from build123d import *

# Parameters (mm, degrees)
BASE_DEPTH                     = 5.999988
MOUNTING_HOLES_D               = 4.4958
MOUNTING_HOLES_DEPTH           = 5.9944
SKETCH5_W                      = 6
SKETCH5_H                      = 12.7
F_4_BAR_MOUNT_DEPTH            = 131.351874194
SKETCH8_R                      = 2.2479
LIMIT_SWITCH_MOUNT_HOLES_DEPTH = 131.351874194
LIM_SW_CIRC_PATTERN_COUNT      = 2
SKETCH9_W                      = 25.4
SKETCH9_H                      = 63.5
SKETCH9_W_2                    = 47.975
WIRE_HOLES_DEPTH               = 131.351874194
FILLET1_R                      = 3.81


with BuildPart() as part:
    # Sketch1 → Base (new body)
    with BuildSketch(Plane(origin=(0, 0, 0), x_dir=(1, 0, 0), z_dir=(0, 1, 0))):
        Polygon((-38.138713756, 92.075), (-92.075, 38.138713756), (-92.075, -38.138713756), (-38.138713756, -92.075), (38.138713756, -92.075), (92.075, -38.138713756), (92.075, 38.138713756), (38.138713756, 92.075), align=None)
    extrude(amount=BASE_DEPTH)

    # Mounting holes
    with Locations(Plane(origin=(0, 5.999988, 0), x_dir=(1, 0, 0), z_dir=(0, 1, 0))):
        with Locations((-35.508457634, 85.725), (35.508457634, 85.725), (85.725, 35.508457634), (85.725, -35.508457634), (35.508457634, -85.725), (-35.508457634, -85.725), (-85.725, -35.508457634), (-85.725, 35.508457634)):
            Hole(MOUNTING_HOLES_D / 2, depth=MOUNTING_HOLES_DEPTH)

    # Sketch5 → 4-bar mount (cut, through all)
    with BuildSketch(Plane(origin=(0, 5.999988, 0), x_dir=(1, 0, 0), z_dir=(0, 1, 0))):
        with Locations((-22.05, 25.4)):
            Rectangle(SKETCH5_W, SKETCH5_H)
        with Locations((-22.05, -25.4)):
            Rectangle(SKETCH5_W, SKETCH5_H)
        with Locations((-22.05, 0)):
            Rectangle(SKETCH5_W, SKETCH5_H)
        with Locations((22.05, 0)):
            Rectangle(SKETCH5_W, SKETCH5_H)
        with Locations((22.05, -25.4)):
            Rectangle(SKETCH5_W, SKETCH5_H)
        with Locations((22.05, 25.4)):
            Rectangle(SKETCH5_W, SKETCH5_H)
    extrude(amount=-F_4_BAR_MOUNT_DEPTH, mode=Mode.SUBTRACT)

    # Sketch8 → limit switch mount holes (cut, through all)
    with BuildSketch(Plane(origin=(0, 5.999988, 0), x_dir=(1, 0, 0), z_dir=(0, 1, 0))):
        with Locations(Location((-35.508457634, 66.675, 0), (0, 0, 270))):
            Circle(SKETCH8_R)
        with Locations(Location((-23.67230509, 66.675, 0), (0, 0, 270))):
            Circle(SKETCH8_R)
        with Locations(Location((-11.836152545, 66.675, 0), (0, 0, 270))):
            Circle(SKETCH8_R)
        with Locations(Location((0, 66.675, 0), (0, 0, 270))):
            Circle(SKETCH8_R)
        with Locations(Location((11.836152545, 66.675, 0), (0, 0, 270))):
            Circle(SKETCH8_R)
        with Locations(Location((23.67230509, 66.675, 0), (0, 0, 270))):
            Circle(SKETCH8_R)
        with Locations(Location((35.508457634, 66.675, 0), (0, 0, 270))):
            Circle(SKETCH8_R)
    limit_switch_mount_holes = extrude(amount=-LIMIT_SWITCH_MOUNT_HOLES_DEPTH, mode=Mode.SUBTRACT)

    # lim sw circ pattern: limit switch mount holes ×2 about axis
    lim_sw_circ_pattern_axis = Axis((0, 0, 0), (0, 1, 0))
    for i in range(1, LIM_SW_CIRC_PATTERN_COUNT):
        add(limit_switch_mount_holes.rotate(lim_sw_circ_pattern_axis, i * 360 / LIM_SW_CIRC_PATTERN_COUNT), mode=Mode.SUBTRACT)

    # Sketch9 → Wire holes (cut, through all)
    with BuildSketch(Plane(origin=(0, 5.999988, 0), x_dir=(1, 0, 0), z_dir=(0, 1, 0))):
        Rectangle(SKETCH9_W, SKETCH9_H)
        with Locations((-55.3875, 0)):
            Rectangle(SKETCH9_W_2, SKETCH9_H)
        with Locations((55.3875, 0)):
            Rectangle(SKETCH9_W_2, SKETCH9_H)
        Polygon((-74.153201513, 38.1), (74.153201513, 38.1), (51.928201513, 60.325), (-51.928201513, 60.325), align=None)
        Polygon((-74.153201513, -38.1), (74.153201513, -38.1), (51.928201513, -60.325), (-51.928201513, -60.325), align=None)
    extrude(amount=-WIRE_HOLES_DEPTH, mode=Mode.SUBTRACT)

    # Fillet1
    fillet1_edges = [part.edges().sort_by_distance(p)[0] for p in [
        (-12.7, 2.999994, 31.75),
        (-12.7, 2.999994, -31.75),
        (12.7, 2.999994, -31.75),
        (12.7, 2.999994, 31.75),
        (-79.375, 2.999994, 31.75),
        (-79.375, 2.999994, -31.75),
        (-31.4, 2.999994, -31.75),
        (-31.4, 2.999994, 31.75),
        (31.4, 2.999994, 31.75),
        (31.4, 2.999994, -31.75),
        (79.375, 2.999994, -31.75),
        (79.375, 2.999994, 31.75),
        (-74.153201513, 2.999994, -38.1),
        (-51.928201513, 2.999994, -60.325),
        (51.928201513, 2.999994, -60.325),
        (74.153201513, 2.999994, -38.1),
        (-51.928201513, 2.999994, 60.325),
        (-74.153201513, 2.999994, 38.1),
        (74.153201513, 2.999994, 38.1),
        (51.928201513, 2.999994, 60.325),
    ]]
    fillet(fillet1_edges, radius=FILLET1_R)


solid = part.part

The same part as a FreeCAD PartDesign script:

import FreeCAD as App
import Part
import Sketcher

V = App.Vector
Q = App.Units.Quantity


def edges_at(feature, points):
    """Names of the edges that pass closest to the given points."""
    edges = feature.Shape.Edges
    near = lambda p: min(range(len(edges)), key=lambda i: edges[i].distToShape(Part.Vertex(*p))[0])
    return sorted({f"Edge{near(p) + 1}" for p in points})

doc = App.newDocument("Part")
body = doc.addObject("PartDesign::Body", "Body")

# Sketch on XZ plane
sketch1 = doc.addObject("Sketcher::SketchObject", "Sketch")
body.addObject(sketch1)
sketch1.AttachmentSupport = (doc.XZ_Plane, [""])
sketch1.MapMode = "FlatFace"
sketch1.addGeometry(Part.LineSegment(V(-38.138714, -92.075, 0), V(-92.075, -38.138714, 0)), False)
sketch1.addGeometry(Part.LineSegment(V(-92.075, -38.138714, 0), V(-92.075, 38.138714, 0)), False)
sketch1.addGeometry(Part.LineSegment(V(-92.075, 38.138714, 0), V(-38.138714, 92.075, 0)), False)
sketch1.addGeometry(Part.LineSegment(V(-38.138714, 92.075, 0), V(38.138714, 92.075, 0)), False)
sketch1.addGeometry(Part.LineSegment(V(38.138714, 92.075, 0), V(92.075, 38.138714, 0)), False)
sketch1.addGeometry(Part.LineSegment(V(92.075, 38.138714, 0), V(92.075, -38.138714, 0)), False)
sketch1.addGeometry(Part.LineSegment(V(92.075, -38.138714, 0), V(38.138714, -92.075, 0)), False)
sketch1.addGeometry(Part.LineSegment(V(38.138714, -92.075, 0), V(-38.138714, -92.075, 0)), False)
sketch1.addConstraint(Sketcher.Constraint("Coincident", 0, 2, 1, 1))
sketch1.addConstraint(Sketcher.Constraint("Coincident", 1, 2, 2, 1))
sketch1.addConstraint(Sketcher.Constraint("Coincident", 2, 2, 3, 1))
sketch1.addConstraint(Sketcher.Constraint("Coincident", 3, 2, 4, 1))
sketch1.addConstraint(Sketcher.Constraint("Coincident", 4, 2, 5, 1))
sketch1.addConstraint(Sketcher.Constraint("Coincident", 5, 2, 6, 1))
sketch1.addConstraint(Sketcher.Constraint("Coincident", 6, 2, 7, 1))
sketch1.addConstraint(Sketcher.Constraint("Coincident", 7, 2, 0, 1))
sketch1.addConstraint(Sketcher.Constraint("Vertical", 1))
sketch1.addConstraint(Sketcher.Constraint("Horizontal", 3))
sketch1.addConstraint(Sketcher.Constraint("Vertical", 5))
sketch1.addConstraint(Sketcher.Constraint("Horizontal", 7))
sketch1.addConstraint(Sketcher.Constraint("Symmetric", 0, 2, 4, 2, -1, 1))
sketch1.addConstraint(Sketcher.Constraint("Symmetric", 2, 2, 6, 2, -1, 1))
sketch1.addConstraint(Sketcher.Constraint("Perpendicular", 0, 2))
sketch1.addConstraint(Sketcher.Constraint("Perpendicular", 2, 4))
sketch1.addConstraint(Sketcher.Constraint("Perpendicular", 4, 6))
sketch1.addConstraint(Sketcher.Constraint("Horizontal", 1, 2, 4, 2))
sketch1.addConstraint(Sketcher.Constraint("Vertical", 3, 2, 6, 2))
sketch1.addConstraint(Sketcher.Constraint("Equal", 7, 1))
sketch1.addConstraint(Sketcher.Constraint("DistanceX", 1, 2, 4, 2, Q("7.25 in")))
sketch1.addConstraint(Sketcher.Constraint("DistanceX", 3, 1, 3, 2, Q("76.277428 mm")))
pad1 = doc.addObject("PartDesign::Pad", "Pad")
body.addObject(pad1)
pad1.Profile = sketch1
pad1.Length = 5.999988
pad1.Reversed = True

# Sketch on XZ plane
sketch2 = doc.addObject("Sketcher::SketchObject", "Sketch001")
body.addObject(sketch2)
sketch2.AttachmentSupport = (doc.XZ_Plane, [""])
sketch2.MapMode = "FlatFace"
sketch2.AttachmentOffset = App.Placement(V(0, 0, -5.999988), App.Rotation())
sketch2.addGeometry(Part.Circle(V(-35.508458, -85.725, 0), V(0, 0, 1), 2.2479), False)
sketch2.addGeometry(Part.Circle(V(35.508458, -85.725, 0), V(0, 0, 1), 2.2479), False)
sketch2.addGeometry(Part.Circle(V(85.725, -35.508458, 0), V(0, 0, 1), 2.2479), False)
sketch2.addGeometry(Part.Circle(V(85.725, 35.508458, 0), V(0, 0, 1), 2.2479), False)
sketch2.addGeometry(Part.Circle(V(35.508458, 85.725, 0), V(0, 0, 1), 2.2479), False)
sketch2.addGeometry(Part.Circle(V(-35.508458, 85.725, 0), V(0, 0, 1), 2.2479), False)
sketch2.addGeometry(Part.Circle(V(-85.725, 35.508458, 0), V(0, 0, 1), 2.2479), False)
sketch2.addGeometry(Part.Circle(V(-85.725, -35.508458, 0), V(0, 0, 1), 2.2479), False)
sketch2.addConstraint(Sketcher.Constraint("Equal", 0, 1))
sketch2.addConstraint(Sketcher.Constraint("Equal", 1, 2))
sketch2.addConstraint(Sketcher.Constraint("Equal", 2, 3))
sketch2.addConstraint(Sketcher.Constraint("Equal", 3, 4))
sketch2.addConstraint(Sketcher.Constraint("Equal", 4, 5))
sketch2.addConstraint(Sketcher.Constraint("Equal", 5, 6))
sketch2.addConstraint(Sketcher.Constraint("Equal", 6, 7))
sketch2.addConstraint(Sketcher.Constraint("Symmetric", 0, 3, 4, 3, -1, 1))
sketch2.addConstraint(Sketcher.Constraint("Symmetric", 1, 3, 5, 3, -1, 1))
sketch2.addConstraint(Sketcher.Constraint("Symmetric", 2, 3, 6, 3, -1, 1))
sketch2.addConstraint(Sketcher.Constraint("Symmetric", 3, 3, 7, 3, -1, 1))
sketch2.addConstraint(Sketcher.Constraint("Symmetric", 0, 3, 1, 3, -2))
sketch2.addConstraint(Sketcher.Constraint("Symmetric", 3, 3, 6, 3, -2))
sketch2.addConstraint(Sketcher.Constraint("Diameter", 0, Q("0.177 in")))
sketch2.addConstraint(Sketcher.Constraint("DistanceY", 1, 3, 4, 3, Q("6.75 in")))
sketch2.addConstraint(Sketcher.Constraint("DistanceX", 6, 3, 3, 3, Q("6.75 in")))
sketch2.addConstraint(Sketcher.Constraint("DistanceX", 0, 3, -1, 1, Q("35.508458 mm")))
sketch2.addConstraint(Sketcher.Constraint("DistanceY", 2, 3, -1, 1, Q("35.508458 mm")))
doc.recompute()
hole = doc.addObject("PartDesign::Hole", "Hole")
body.addObject(hole)
hole.Profile = sketch2
hole.ThreadType = "None"
hole.Diameter = Q("0.177 in")
hole.DepthType = "Dimension"
hole.Depth = Q("0.236 in")
hole.DrillPoint = "Flat"
hole.Reversed = True

# Sketch on XZ plane
sketch3 = doc.addObject("Sketcher::SketchObject", "Sketch002")
body.addObject(sketch3)
sketch3.AttachmentSupport = (doc.XZ_Plane, [""])
sketch3.MapMode = "FlatFace"
sketch3.AttachmentOffset = App.Placement(V(0, 0, -5.999988), App.Rotation())
sketch3.addGeometry(Part.LineSegment(V(-25.05, -31.75, 0), V(-25.05, -19.05, 0)), False)
sketch3.addGeometry(Part.LineSegment(V(-25.05, -19.05, 0), V(-19.05, -19.05, 0)), False)
sketch3.addGeometry(Part.LineSegment(V(-19.05, -19.05, 0), V(-19.05, -31.75, 0)), False)
sketch3.addGeometry(Part.LineSegment(V(-19.05, -31.75, 0), V(-25.05, -31.75, 0)), False)
sketch3.addGeometry(Part.LineSegment(V(-25.05, 19.05, 0), V(-25.05, 31.75, 0)), False)
sketch3.addGeometry(Part.LineSegment(V(-25.05, 31.75, 0), V(-19.05, 31.75, 0)), False)
sketch3.addGeometry(Part.LineSegment(V(-19.05, 31.75, 0), V(-19.05, 19.05, 0)), False)
sketch3.addGeometry(Part.LineSegment(V(-19.05, 19.05, 0), V(-25.05, 19.05, 0)), False)
sketch3.addGeometry(Part.LineSegment(V(-25.05, -6.35, 0), V(-25.05, 6.35, 0)), False)
sketch3.addGeometry(Part.LineSegment(V(-25.05, 6.35, 0), V(-19.05, 6.35, 0)), False)
sketch3.addGeometry(Part.LineSegment(V(-19.05, 6.35, 0), V(-19.05, -6.35, 0)), False)
sketch3.addGeometry(Part.LineSegment(V(-19.05, -6.35, 0), V(-25.05, -6.35, 0)), False)
sketch3.addGeometry(Part.LineSegment(V(19.05, -6.35, 0), V(19.05, 6.35, 0)), False)
sketch3.addGeometry(Part.LineSegment(V(19.05, 6.35, 0), V(25.05, 6.35, 0)), False)
sketch3.addGeometry(Part.LineSegment(V(25.05, 6.35, 0), V(25.05, -6.35, 0)), False)
sketch3.addGeometry(Part.LineSegment(V(25.05, -6.35, 0), V(19.05, -6.35, 0)), False)
sketch3.addGeometry(Part.LineSegment(V(19.05, 19.05, 0), V(19.05, 31.75, 0)), False)
sketch3.addGeometry(Part.LineSegment(V(19.05, 31.75, 0), V(25.05, 31.75, 0)), False)
sketch3.addGeometry(Part.LineSegment(V(25.05, 31.75, 0), V(25.05, 19.05, 0)), False)
sketch3.addGeometry(Part.LineSegment(V(25.05, 19.05, 0), V(19.05, 19.05, 0)), False)
sketch3.addGeometry(Part.LineSegment(V(19.05, -31.75, 0), V(19.05, -19.05, 0)), False)
sketch3.addGeometry(Part.LineSegment(V(19.05, -19.05, 0), V(25.05, -19.05, 0)), False)
sketch3.addGeometry(Part.LineSegment(V(25.05, -19.05, 0), V(25.05, -31.75, 0)), False)
sketch3.addGeometry(Part.LineSegment(V(25.05, -31.75, 0), V(19.05, -31.75, 0)), False)
sketch3.addConstraint(Sketcher.Constraint("Coincident", 0, 2, 1, 1))
sketch3.addConstraint(Sketcher.Constraint("Coincident", 1, 2, 2, 1))
sketch3.addConstraint(Sketcher.Constraint("Coincident", 2, 2, 3, 1))
sketch3.addConstraint(Sketcher.Constraint("Coincident", 3, 2, 0, 1))
sketch3.addConstraint(Sketcher.Constraint("Coincident", 4, 2, 5, 1))
sketch3.addConstraint(Sketcher.Constraint("Coincident", 5, 2, 6, 1))
sketch3.addConstraint(Sketcher.Constraint("Coincident", 6, 2, 7, 1))
sketch3.addConstraint(Sketcher.Constraint("Coincident", 7, 2, 4, 1))
sketch3.addConstraint(Sketcher.Constraint("Coincident", 8, 2, 9, 1))
sketch3.addConstraint(Sketcher.Constraint("Coincident", 9, 2, 10, 1))
sketch3.addConstraint(Sketcher.Constraint("Coincident", 10, 2, 11, 1))
sketch3.addConstraint(Sketcher.Constraint("Coincident", 11, 2, 8, 1))
sketch3.addConstraint(Sketcher.Constraint("Coincident", 12, 2, 13, 1))
sketch3.addConstraint(Sketcher.Constraint("Coincident", 13, 2, 14, 1))
sketch3.addConstraint(Sketcher.Constraint("Coincident", 14, 2, 15, 1))
sketch3.addConstraint(Sketcher.Constraint("Coincident", 15, 2, 12, 1))
sketch3.addConstraint(Sketcher.Constraint("Coincident", 16, 2, 17, 1))
sketch3.addConstraint(Sketcher.Constraint("Coincident", 17, 2, 18, 1))
sketch3.addConstraint(Sketcher.Constraint("Coincident", 18, 2, 19, 1))
sketch3.addConstraint(Sketcher.Constraint("Coincident", 19, 2, 16, 1))
sketch3.addConstraint(Sketcher.Constraint("Coincident", 20, 2, 21, 1))
sketch3.addConstraint(Sketcher.Constraint("Coincident", 21, 2, 22, 1))
sketch3.addConstraint(Sketcher.Constraint("Coincident", 22, 2, 23, 1))
sketch3.addConstraint(Sketcher.Constraint("Coincident", 23, 2, 20, 1))
sketch3.addConstraint(Sketcher.Constraint("Vertical", 0))
sketch3.addConstraint(Sketcher.Constraint("Horizontal", 1))
sketch3.addConstraint(Sketcher.Constraint("Vertical", 2))
sketch3.addConstraint(Sketcher.Constraint("Horizontal", 3))
sketch3.addConstraint(Sketcher.Constraint("Vertical", 4))
sketch3.addConstraint(Sketcher.Constraint("Horizontal", 5))
sketch3.addConstraint(Sketcher.Constraint("Vertical", 6))
sketch3.addConstraint(Sketcher.Constraint("Horizontal", 7))
sketch3.addConstraint(Sketcher.Constraint("Vertical", 8))
sketch3.addConstraint(Sketcher.Constraint("Horizontal", 9))
sketch3.addConstraint(Sketcher.Constraint("Vertical", 10))
sketch3.addConstraint(Sketcher.Constraint("Horizontal", 11))
sketch3.addConstraint(Sketcher.Constraint("Vertical", 12))
sketch3.addConstraint(Sketcher.Constraint("Horizontal", 13))
sketch3.addConstraint(Sketcher.Constraint("Vertical", 14))
sketch3.addConstraint(Sketcher.Constraint("Horizontal", 15))
sketch3.addConstraint(Sketcher.Constraint("Vertical", 16))
sketch3.addConstraint(Sketcher.Constraint("Horizontal", 17))
sketch3.addConstraint(Sketcher.Constraint("Vertical", 18))
sketch3.addConstraint(Sketcher.Constraint("Horizontal", 19))
sketch3.addConstraint(Sketcher.Constraint("Vertical", 20))
sketch3.addConstraint(Sketcher.Constraint("Horizontal", 21))
sketch3.addConstraint(Sketcher.Constraint("Vertical", 22))
sketch3.addConstraint(Sketcher.Constraint("Horizontal", 23))
sketch3.addConstraint(Sketcher.Constraint("Symmetric", 10, 2, 12, 2, -1, 1))
sketch3.addConstraint(Sketcher.Constraint("Symmetric", 8, 2, 14, 2, -1, 1))
sketch3.addConstraint(Sketcher.Constraint("Symmetric", 2, 2, 16, 2, -1, 1))
sketch3.addConstraint(Sketcher.Constraint("Symmetric", 0, 2, 18, 2, -1, 1))
sketch3.addConstraint(Sketcher.Constraint("Symmetric", 6, 2, 20, 2, -1, 1))
sketch3.addConstraint(Sketcher.Constraint("Symmetric", 4, 2, 22, 2, -1, 1))
sketch3.addConstraint(Sketcher.Constraint("Symmetric", 5, 2, 16, 2, -2))
sketch3.addConstraint(Sketcher.Constraint("Symmetric", 7, 2, 18, 2, -2))
sketch3.addConstraint(Sketcher.Constraint("Horizontal", 9, 2, 12, 2))
sketch3.addConstraint(Sketcher.Constraint("Vertical", 7, 2, 8, 2))
sketch3.addConstraint(Sketcher.Constraint("Vertical", 6, 2, 9, 2))
sketch3.addConstraint(Sketcher.Constraint("Equal", 6, 8))
sketch3.addConstraint(Sketcher.Constraint("DistanceY", 0, 1, 0, 2, Q("0.5 in")))
sketch3.addConstraint(Sketcher.Constraint("DistanceY", 0, 2, 4, 2, Q("2 in")))
sketch3.addConstraint(Sketcher.Constraint("DistanceX", 9, 2, 12, 2, Q("1.5 in")))
sketch3.addConstraint(Sketcher.Constraint("DistanceX", 1, 1, 1, 2, Q("6 mm")))
pocket1 = doc.addObject("PartDesign::Pocket", "Pocket")
body.addObject(pocket1)
pocket1.Profile = sketch3
pocket1.Type = "ThroughAll"
pocket1.Reversed = True

# Sketch on XZ plane
sketch4 = doc.addObject("Sketcher::SketchObject", "Sketch003")
body.addObject(sketch4)
sketch4.AttachmentSupport = (doc.XZ_Plane, [""])
sketch4.MapMode = "FlatFace"
sketch4.AttachmentOffset = App.Placement(V(0, 0, -5.999988), App.Rotation())
sketch4.addGeometry(Part.Circle(V(-35.508458, -66.675, 0), V(0, 0, 1), 2.2479), False)
sketch4.addGeometry(Part.Circle(V(-23.672305, -66.675, 0), V(0, 0, 1), 2.2479), False)
sketch4.addGeometry(Part.Circle(V(-11.836153, -66.675, 0), V(0, 0, 1), 2.2479), False)
sketch4.addGeometry(Part.Circle(V(0, -66.675, 0), V(0, 0, 1), 2.2479), False)
sketch4.addGeometry(Part.Circle(V(11.836153, -66.675, 0), V(0, 0, 1), 2.2479), False)
sketch4.addGeometry(Part.Circle(V(23.672305, -66.675, 0), V(0, 0, 1), 2.2479), False)
sketch4.addGeometry(Part.Circle(V(35.508458, -66.675, 0), V(0, 0, 1), 2.2479), False)
sketch4.addConstraint(Sketcher.Constraint("Equal", 0, 1))
sketch4.addConstraint(Sketcher.Constraint("Equal", 1, 2))
sketch4.addConstraint(Sketcher.Constraint("Equal", 2, 3))
sketch4.addConstraint(Sketcher.Constraint("Equal", 3, 4))
sketch4.addConstraint(Sketcher.Constraint("Equal", 4, 5))
sketch4.addConstraint(Sketcher.Constraint("Equal", 5, 6))
sketch4.addConstraint(Sketcher.Constraint("Symmetric", 2, 3, 4, 3, -2))
sketch4.addConstraint(Sketcher.Constraint("Symmetric", 1, 3, 5, 3, -2))
sketch4.addConstraint(Sketcher.Constraint("Symmetric", 0, 3, 6, 3, -2))
sketch4.addConstraint(Sketcher.Constraint("PointOnObject", 3, 3, -2))
sketch4.addConstraint(Sketcher.Constraint("Horizontal", 0, 3, 1, 3))
sketch4.addConstraint(Sketcher.Constraint("Horizontal", 1, 3, 2, 3))
sketch4.addConstraint(Sketcher.Constraint("Horizontal", 2, 3, 3, 3))
sketch4.addConstraint(Sketcher.Constraint("Diameter", 0, Q("0.177 in")))
sketch4.addConstraint(Sketcher.Constraint("DistanceY", 0, 3, -1, 1, Q("2.625 in")))
sketch4.addConstraint(Sketcher.Constraint("DistanceX", 0, 3, 4, 3, Q("47.34461 mm")))
sketch4.addConstraint(Sketcher.Constraint("DistanceX", 1, 3, 5, 3, Q("47.34461 mm")))
sketch4.addConstraint(Sketcher.Constraint("DistanceX", 0, 3, -1, 1, Q("35.508458 mm")))
pocket2 = doc.addObject("PartDesign::Pocket", "Pocket001")
body.addObject(pocket2)
pocket2.Profile = sketch4
pocket2.Type = "ThroughAll"
pocket2.Reversed = True
doc.recompute()

polarpattern = doc.addObject("PartDesign::PolarPattern", "PolarPattern")
body.addObject(polarpattern)
polarpattern.Originals = [pocket2]
polarpattern.Axis = (doc.Y_Axis, [""])
polarpattern.Angle = 360
polarpattern.Occurrences = 2
body.Tip = polarpattern

# Sketch on XZ plane
sketch5 = doc.addObject("Sketcher::SketchObject", "Sketch004")
body.addObject(sketch5)
sketch5.AttachmentSupport = (doc.XZ_Plane, [""])
sketch5.MapMode = "FlatFace"
sketch5.AttachmentOffset = App.Placement(V(0, 0, -5.999988), App.Rotation())
sketch5.addGeometry(Part.LineSegment(V(-12.7, -31.75, 0), V(-12.7, 31.75, 0)), False)
sketch5.addGeometry(Part.LineSegment(V(-12.7, 31.75, 0), V(12.7, 31.75, 0)), False)
sketch5.addGeometry(Part.LineSegment(V(12.7, 31.75, 0), V(12.7, -31.75, 0)), False)
sketch5.addGeometry(Part.LineSegment(V(12.7, -31.75, 0), V(-12.7, -31.75, 0)), False)
sketch5.addGeometry(Part.LineSegment(V(-79.375, -31.75, 0), V(-79.375, 31.75, 0)), False)
sketch5.addGeometry(Part.LineSegment(V(-79.375, 31.75, 0), V(-31.4, 31.75, 0)), False)
sketch5.addGeometry(Part.LineSegment(V(-31.4, 31.75, 0), V(-31.4, -31.75, 0)), False)
sketch5.addGeometry(Part.LineSegment(V(-31.4, -31.75, 0), V(-79.375, -31.75, 0)), False)
sketch5.addGeometry(Part.LineSegment(V(31.4, -31.75, 0), V(31.4, 31.75, 0)), False)
sketch5.addGeometry(Part.LineSegment(V(31.4, 31.75, 0), V(79.375, 31.75, 0)), False)
sketch5.addGeometry(Part.LineSegment(V(79.375, 31.75, 0), V(79.375, -31.75, 0)), False)
sketch5.addGeometry(Part.LineSegment(V(79.375, -31.75, 0), V(31.4, -31.75, 0)), False)
sketch5.addGeometry(Part.LineSegment(V(-74.153202, -38.1, 0), V(74.153202, -38.1, 0)), False)
sketch5.addGeometry(Part.LineSegment(V(74.153202, -38.1, 0), V(51.928202, -60.325, 0)), False)
sketch5.addGeometry(Part.LineSegment(V(51.928202, -60.325, 0), V(-51.928202, -60.325, 0)), False)
sketch5.addGeometry(Part.LineSegment(V(-51.928202, -60.325, 0), V(-74.153202, -38.1, 0)), False)
sketch5.addGeometry(Part.LineSegment(V(74.153202, 38.1, 0), V(-74.153202, 38.1, 0)), False)
sketch5.addGeometry(Part.LineSegment(V(-74.153202, 38.1, 0), V(-51.928202, 60.325, 0)), False)
sketch5.addGeometry(Part.LineSegment(V(-51.928202, 60.325, 0), V(51.928202, 60.325, 0)), False)
sketch5.addGeometry(Part.LineSegment(V(51.928202, 60.325, 0), V(74.153202, 38.1, 0)), False)
sketch5.addConstraint(Sketcher.Constraint("Coincident", 0, 2, 1, 1))
sketch5.addConstraint(Sketcher.Constraint("Coincident", 1, 2, 2, 1))
sketch5.addConstraint(Sketcher.Constraint("Coincident", 2, 2, 3, 1))
sketch5.addConstraint(Sketcher.Constraint("Coincident", 3, 2, 0, 1))
sketch5.addConstraint(Sketcher.Constraint("Coincident", 4, 2, 5, 1))
sketch5.addConstraint(Sketcher.Constraint("Coincident", 5, 2, 6, 1))
sketch5.addConstraint(Sketcher.Constraint("Coincident", 6, 2, 7, 1))
sketch5.addConstraint(Sketcher.Constraint("Coincident", 7, 2, 4, 1))
sketch5.addConstraint(Sketcher.Constraint("Coincident", 8, 2, 9, 1))
sketch5.addConstraint(Sketcher.Constraint("Coincident", 9, 2, 10, 1))
sketch5.addConstraint(Sketcher.Constraint("Coincident", 10, 2, 11, 1))
sketch5.addConstraint(Sketcher.Constraint("Coincident", 11, 2, 8, 1))
sketch5.addConstraint(Sketcher.Constraint("Coincident", 12, 2, 13, 1))
sketch5.addConstraint(Sketcher.Constraint("Coincident", 13, 2, 14, 1))
sketch5.addConstraint(Sketcher.Constraint("Coincident", 14, 2, 15, 1))
sketch5.addConstraint(Sketcher.Constraint("Coincident", 15, 2, 12, 1))
sketch5.addConstraint(Sketcher.Constraint("Coincident", 16, 2, 17, 1))
sketch5.addConstraint(Sketcher.Constraint("Coincident", 17, 2, 18, 1))
sketch5.addConstraint(Sketcher.Constraint("Coincident", 18, 2, 19, 1))
sketch5.addConstraint(Sketcher.Constraint("Coincident", 19, 2, 16, 1))
sketch5.addConstraint(Sketcher.Constraint("Vertical", 0))
sketch5.addConstraint(Sketcher.Constraint("Horizontal", 1))
sketch5.addConstraint(Sketcher.Constraint("Vertical", 2))
sketch5.addConstraint(Sketcher.Constraint("Horizontal", 3))
sketch5.addConstraint(Sketcher.Constraint("Vertical", 4))
sketch5.addConstraint(Sketcher.Constraint("Horizontal", 5))
sketch5.addConstraint(Sketcher.Constraint("Vertical", 6))
sketch5.addConstraint(Sketcher.Constraint("Horizontal", 7))
sketch5.addConstraint(Sketcher.Constraint("Vertical", 8))
sketch5.addConstraint(Sketcher.Constraint("Horizontal", 9))
sketch5.addConstraint(Sketcher.Constraint("Vertical", 10))
sketch5.addConstraint(Sketcher.Constraint("Horizontal", 11))
sketch5.addConstraint(Sketcher.Constraint("Horizontal", 12))
sketch5.addConstraint(Sketcher.Constraint("Horizontal", 14))
sketch5.addConstraint(Sketcher.Constraint("Horizontal", 16))
sketch5.addConstraint(Sketcher.Constraint("Horizontal", 18))
sketch5.addConstraint(Sketcher.Constraint("Symmetric", 0, 2, 2, 2, -1, 1))
sketch5.addConstraint(Sketcher.Constraint("Symmetric", 6, 2, 8, 2, -1, 1))
sketch5.addConstraint(Sketcher.Constraint("Symmetric", 4, 2, 10, 2, -1, 1))
sketch5.addConstraint(Sketcher.Constraint("Symmetric", 12, 2, 16, 2, -1, 1))
sketch5.addConstraint(Sketcher.Constraint("Symmetric", 13, 2, 17, 2, -1, 1))
sketch5.addConstraint(Sketcher.Constraint("Perpendicular", 13, 15))
sketch5.addConstraint(Sketcher.Constraint("Perpendicular", 17, 19))
sketch5.addConstraint(Sketcher.Constraint("Horizontal", 1, 2, 4, 2))
sketch5.addConstraint(Sketcher.Constraint("Horizontal", 3, 2, 6, 2))
sketch5.addConstraint(Sketcher.Constraint("Vertical", 15, 2, 16, 2))
sketch5.addConstraint(Sketcher.Constraint("Vertical", 14, 2, 17, 2))
sketch5.addConstraint(Sketcher.Constraint("Vertical", 13, 2, 18, 2))
sketch5.addConstraint(Sketcher.Constraint("DistanceX", 1, 1, 1, 2, Q("1 in")))
sketch5.addConstraint(Sketcher.Constraint("DistanceY", 0, 1, 0, 2, Q("2.5 in")))
sketch5.addConstraint(Sketcher.Constraint("DistanceY", 15, 2, 16, 2, Q("3 in")))
sketch5.addConstraint(Sketcher.Constraint("DistanceX", 4, 2, -1, 1, Q("3.125 in")))
sketch5.addConstraint(Sketcher.Constraint("DistanceY", 13, 2, -1, 1, Q("2.375 in")))
sketch5.addConstraint(Sketcher.Constraint("DistanceX", 5, 1, 5, 2, Q("47.975 mm")))
sketch5.addConstraint(Sketcher.Constraint("DistanceX", -1, 1, 12, 2, Q("74.153202 mm")))
pocket3 = doc.addObject("PartDesign::Pocket", "Pocket002")
body.addObject(pocket3)
pocket3.Profile = sketch5
pocket3.Type = "ThroughAll"
pocket3.Reversed = True
doc.recompute()

fillet = doc.addObject("PartDesign::Fillet", "Fillet")
body.addObject(fillet)
fillet.Base = (pocket3, edges_at(pocket3, [
    (-12.7, 3, 31.75),
    (-12.7, 3, -31.75),
    (12.7, 3, -31.75),
    (12.7, 3, 31.75),
    (-79.375, 3, 31.75),
    (-79.375, 3, -31.75),
    (-31.4, 3, -31.75),
    (-31.4, 3, 31.75),
    (31.4, 3, 31.75),
    (31.4, 3, -31.75),
    (79.375, 3, -31.75),
    (79.375, 3, 31.75),
    (-74.153, 3, -38.1),
    (-51.928, 3, -60.325),
    (51.928, 3, -60.325),
    (74.153, 3, -38.1),
    (-51.928, 3, 60.325),
    (-74.153, 3, 38.1),
    (74.153, 3, 38.1),
    (51.928, 3, 60.325),
]))
fillet.Radius = Q("0.15 in")

doc.recompute()
